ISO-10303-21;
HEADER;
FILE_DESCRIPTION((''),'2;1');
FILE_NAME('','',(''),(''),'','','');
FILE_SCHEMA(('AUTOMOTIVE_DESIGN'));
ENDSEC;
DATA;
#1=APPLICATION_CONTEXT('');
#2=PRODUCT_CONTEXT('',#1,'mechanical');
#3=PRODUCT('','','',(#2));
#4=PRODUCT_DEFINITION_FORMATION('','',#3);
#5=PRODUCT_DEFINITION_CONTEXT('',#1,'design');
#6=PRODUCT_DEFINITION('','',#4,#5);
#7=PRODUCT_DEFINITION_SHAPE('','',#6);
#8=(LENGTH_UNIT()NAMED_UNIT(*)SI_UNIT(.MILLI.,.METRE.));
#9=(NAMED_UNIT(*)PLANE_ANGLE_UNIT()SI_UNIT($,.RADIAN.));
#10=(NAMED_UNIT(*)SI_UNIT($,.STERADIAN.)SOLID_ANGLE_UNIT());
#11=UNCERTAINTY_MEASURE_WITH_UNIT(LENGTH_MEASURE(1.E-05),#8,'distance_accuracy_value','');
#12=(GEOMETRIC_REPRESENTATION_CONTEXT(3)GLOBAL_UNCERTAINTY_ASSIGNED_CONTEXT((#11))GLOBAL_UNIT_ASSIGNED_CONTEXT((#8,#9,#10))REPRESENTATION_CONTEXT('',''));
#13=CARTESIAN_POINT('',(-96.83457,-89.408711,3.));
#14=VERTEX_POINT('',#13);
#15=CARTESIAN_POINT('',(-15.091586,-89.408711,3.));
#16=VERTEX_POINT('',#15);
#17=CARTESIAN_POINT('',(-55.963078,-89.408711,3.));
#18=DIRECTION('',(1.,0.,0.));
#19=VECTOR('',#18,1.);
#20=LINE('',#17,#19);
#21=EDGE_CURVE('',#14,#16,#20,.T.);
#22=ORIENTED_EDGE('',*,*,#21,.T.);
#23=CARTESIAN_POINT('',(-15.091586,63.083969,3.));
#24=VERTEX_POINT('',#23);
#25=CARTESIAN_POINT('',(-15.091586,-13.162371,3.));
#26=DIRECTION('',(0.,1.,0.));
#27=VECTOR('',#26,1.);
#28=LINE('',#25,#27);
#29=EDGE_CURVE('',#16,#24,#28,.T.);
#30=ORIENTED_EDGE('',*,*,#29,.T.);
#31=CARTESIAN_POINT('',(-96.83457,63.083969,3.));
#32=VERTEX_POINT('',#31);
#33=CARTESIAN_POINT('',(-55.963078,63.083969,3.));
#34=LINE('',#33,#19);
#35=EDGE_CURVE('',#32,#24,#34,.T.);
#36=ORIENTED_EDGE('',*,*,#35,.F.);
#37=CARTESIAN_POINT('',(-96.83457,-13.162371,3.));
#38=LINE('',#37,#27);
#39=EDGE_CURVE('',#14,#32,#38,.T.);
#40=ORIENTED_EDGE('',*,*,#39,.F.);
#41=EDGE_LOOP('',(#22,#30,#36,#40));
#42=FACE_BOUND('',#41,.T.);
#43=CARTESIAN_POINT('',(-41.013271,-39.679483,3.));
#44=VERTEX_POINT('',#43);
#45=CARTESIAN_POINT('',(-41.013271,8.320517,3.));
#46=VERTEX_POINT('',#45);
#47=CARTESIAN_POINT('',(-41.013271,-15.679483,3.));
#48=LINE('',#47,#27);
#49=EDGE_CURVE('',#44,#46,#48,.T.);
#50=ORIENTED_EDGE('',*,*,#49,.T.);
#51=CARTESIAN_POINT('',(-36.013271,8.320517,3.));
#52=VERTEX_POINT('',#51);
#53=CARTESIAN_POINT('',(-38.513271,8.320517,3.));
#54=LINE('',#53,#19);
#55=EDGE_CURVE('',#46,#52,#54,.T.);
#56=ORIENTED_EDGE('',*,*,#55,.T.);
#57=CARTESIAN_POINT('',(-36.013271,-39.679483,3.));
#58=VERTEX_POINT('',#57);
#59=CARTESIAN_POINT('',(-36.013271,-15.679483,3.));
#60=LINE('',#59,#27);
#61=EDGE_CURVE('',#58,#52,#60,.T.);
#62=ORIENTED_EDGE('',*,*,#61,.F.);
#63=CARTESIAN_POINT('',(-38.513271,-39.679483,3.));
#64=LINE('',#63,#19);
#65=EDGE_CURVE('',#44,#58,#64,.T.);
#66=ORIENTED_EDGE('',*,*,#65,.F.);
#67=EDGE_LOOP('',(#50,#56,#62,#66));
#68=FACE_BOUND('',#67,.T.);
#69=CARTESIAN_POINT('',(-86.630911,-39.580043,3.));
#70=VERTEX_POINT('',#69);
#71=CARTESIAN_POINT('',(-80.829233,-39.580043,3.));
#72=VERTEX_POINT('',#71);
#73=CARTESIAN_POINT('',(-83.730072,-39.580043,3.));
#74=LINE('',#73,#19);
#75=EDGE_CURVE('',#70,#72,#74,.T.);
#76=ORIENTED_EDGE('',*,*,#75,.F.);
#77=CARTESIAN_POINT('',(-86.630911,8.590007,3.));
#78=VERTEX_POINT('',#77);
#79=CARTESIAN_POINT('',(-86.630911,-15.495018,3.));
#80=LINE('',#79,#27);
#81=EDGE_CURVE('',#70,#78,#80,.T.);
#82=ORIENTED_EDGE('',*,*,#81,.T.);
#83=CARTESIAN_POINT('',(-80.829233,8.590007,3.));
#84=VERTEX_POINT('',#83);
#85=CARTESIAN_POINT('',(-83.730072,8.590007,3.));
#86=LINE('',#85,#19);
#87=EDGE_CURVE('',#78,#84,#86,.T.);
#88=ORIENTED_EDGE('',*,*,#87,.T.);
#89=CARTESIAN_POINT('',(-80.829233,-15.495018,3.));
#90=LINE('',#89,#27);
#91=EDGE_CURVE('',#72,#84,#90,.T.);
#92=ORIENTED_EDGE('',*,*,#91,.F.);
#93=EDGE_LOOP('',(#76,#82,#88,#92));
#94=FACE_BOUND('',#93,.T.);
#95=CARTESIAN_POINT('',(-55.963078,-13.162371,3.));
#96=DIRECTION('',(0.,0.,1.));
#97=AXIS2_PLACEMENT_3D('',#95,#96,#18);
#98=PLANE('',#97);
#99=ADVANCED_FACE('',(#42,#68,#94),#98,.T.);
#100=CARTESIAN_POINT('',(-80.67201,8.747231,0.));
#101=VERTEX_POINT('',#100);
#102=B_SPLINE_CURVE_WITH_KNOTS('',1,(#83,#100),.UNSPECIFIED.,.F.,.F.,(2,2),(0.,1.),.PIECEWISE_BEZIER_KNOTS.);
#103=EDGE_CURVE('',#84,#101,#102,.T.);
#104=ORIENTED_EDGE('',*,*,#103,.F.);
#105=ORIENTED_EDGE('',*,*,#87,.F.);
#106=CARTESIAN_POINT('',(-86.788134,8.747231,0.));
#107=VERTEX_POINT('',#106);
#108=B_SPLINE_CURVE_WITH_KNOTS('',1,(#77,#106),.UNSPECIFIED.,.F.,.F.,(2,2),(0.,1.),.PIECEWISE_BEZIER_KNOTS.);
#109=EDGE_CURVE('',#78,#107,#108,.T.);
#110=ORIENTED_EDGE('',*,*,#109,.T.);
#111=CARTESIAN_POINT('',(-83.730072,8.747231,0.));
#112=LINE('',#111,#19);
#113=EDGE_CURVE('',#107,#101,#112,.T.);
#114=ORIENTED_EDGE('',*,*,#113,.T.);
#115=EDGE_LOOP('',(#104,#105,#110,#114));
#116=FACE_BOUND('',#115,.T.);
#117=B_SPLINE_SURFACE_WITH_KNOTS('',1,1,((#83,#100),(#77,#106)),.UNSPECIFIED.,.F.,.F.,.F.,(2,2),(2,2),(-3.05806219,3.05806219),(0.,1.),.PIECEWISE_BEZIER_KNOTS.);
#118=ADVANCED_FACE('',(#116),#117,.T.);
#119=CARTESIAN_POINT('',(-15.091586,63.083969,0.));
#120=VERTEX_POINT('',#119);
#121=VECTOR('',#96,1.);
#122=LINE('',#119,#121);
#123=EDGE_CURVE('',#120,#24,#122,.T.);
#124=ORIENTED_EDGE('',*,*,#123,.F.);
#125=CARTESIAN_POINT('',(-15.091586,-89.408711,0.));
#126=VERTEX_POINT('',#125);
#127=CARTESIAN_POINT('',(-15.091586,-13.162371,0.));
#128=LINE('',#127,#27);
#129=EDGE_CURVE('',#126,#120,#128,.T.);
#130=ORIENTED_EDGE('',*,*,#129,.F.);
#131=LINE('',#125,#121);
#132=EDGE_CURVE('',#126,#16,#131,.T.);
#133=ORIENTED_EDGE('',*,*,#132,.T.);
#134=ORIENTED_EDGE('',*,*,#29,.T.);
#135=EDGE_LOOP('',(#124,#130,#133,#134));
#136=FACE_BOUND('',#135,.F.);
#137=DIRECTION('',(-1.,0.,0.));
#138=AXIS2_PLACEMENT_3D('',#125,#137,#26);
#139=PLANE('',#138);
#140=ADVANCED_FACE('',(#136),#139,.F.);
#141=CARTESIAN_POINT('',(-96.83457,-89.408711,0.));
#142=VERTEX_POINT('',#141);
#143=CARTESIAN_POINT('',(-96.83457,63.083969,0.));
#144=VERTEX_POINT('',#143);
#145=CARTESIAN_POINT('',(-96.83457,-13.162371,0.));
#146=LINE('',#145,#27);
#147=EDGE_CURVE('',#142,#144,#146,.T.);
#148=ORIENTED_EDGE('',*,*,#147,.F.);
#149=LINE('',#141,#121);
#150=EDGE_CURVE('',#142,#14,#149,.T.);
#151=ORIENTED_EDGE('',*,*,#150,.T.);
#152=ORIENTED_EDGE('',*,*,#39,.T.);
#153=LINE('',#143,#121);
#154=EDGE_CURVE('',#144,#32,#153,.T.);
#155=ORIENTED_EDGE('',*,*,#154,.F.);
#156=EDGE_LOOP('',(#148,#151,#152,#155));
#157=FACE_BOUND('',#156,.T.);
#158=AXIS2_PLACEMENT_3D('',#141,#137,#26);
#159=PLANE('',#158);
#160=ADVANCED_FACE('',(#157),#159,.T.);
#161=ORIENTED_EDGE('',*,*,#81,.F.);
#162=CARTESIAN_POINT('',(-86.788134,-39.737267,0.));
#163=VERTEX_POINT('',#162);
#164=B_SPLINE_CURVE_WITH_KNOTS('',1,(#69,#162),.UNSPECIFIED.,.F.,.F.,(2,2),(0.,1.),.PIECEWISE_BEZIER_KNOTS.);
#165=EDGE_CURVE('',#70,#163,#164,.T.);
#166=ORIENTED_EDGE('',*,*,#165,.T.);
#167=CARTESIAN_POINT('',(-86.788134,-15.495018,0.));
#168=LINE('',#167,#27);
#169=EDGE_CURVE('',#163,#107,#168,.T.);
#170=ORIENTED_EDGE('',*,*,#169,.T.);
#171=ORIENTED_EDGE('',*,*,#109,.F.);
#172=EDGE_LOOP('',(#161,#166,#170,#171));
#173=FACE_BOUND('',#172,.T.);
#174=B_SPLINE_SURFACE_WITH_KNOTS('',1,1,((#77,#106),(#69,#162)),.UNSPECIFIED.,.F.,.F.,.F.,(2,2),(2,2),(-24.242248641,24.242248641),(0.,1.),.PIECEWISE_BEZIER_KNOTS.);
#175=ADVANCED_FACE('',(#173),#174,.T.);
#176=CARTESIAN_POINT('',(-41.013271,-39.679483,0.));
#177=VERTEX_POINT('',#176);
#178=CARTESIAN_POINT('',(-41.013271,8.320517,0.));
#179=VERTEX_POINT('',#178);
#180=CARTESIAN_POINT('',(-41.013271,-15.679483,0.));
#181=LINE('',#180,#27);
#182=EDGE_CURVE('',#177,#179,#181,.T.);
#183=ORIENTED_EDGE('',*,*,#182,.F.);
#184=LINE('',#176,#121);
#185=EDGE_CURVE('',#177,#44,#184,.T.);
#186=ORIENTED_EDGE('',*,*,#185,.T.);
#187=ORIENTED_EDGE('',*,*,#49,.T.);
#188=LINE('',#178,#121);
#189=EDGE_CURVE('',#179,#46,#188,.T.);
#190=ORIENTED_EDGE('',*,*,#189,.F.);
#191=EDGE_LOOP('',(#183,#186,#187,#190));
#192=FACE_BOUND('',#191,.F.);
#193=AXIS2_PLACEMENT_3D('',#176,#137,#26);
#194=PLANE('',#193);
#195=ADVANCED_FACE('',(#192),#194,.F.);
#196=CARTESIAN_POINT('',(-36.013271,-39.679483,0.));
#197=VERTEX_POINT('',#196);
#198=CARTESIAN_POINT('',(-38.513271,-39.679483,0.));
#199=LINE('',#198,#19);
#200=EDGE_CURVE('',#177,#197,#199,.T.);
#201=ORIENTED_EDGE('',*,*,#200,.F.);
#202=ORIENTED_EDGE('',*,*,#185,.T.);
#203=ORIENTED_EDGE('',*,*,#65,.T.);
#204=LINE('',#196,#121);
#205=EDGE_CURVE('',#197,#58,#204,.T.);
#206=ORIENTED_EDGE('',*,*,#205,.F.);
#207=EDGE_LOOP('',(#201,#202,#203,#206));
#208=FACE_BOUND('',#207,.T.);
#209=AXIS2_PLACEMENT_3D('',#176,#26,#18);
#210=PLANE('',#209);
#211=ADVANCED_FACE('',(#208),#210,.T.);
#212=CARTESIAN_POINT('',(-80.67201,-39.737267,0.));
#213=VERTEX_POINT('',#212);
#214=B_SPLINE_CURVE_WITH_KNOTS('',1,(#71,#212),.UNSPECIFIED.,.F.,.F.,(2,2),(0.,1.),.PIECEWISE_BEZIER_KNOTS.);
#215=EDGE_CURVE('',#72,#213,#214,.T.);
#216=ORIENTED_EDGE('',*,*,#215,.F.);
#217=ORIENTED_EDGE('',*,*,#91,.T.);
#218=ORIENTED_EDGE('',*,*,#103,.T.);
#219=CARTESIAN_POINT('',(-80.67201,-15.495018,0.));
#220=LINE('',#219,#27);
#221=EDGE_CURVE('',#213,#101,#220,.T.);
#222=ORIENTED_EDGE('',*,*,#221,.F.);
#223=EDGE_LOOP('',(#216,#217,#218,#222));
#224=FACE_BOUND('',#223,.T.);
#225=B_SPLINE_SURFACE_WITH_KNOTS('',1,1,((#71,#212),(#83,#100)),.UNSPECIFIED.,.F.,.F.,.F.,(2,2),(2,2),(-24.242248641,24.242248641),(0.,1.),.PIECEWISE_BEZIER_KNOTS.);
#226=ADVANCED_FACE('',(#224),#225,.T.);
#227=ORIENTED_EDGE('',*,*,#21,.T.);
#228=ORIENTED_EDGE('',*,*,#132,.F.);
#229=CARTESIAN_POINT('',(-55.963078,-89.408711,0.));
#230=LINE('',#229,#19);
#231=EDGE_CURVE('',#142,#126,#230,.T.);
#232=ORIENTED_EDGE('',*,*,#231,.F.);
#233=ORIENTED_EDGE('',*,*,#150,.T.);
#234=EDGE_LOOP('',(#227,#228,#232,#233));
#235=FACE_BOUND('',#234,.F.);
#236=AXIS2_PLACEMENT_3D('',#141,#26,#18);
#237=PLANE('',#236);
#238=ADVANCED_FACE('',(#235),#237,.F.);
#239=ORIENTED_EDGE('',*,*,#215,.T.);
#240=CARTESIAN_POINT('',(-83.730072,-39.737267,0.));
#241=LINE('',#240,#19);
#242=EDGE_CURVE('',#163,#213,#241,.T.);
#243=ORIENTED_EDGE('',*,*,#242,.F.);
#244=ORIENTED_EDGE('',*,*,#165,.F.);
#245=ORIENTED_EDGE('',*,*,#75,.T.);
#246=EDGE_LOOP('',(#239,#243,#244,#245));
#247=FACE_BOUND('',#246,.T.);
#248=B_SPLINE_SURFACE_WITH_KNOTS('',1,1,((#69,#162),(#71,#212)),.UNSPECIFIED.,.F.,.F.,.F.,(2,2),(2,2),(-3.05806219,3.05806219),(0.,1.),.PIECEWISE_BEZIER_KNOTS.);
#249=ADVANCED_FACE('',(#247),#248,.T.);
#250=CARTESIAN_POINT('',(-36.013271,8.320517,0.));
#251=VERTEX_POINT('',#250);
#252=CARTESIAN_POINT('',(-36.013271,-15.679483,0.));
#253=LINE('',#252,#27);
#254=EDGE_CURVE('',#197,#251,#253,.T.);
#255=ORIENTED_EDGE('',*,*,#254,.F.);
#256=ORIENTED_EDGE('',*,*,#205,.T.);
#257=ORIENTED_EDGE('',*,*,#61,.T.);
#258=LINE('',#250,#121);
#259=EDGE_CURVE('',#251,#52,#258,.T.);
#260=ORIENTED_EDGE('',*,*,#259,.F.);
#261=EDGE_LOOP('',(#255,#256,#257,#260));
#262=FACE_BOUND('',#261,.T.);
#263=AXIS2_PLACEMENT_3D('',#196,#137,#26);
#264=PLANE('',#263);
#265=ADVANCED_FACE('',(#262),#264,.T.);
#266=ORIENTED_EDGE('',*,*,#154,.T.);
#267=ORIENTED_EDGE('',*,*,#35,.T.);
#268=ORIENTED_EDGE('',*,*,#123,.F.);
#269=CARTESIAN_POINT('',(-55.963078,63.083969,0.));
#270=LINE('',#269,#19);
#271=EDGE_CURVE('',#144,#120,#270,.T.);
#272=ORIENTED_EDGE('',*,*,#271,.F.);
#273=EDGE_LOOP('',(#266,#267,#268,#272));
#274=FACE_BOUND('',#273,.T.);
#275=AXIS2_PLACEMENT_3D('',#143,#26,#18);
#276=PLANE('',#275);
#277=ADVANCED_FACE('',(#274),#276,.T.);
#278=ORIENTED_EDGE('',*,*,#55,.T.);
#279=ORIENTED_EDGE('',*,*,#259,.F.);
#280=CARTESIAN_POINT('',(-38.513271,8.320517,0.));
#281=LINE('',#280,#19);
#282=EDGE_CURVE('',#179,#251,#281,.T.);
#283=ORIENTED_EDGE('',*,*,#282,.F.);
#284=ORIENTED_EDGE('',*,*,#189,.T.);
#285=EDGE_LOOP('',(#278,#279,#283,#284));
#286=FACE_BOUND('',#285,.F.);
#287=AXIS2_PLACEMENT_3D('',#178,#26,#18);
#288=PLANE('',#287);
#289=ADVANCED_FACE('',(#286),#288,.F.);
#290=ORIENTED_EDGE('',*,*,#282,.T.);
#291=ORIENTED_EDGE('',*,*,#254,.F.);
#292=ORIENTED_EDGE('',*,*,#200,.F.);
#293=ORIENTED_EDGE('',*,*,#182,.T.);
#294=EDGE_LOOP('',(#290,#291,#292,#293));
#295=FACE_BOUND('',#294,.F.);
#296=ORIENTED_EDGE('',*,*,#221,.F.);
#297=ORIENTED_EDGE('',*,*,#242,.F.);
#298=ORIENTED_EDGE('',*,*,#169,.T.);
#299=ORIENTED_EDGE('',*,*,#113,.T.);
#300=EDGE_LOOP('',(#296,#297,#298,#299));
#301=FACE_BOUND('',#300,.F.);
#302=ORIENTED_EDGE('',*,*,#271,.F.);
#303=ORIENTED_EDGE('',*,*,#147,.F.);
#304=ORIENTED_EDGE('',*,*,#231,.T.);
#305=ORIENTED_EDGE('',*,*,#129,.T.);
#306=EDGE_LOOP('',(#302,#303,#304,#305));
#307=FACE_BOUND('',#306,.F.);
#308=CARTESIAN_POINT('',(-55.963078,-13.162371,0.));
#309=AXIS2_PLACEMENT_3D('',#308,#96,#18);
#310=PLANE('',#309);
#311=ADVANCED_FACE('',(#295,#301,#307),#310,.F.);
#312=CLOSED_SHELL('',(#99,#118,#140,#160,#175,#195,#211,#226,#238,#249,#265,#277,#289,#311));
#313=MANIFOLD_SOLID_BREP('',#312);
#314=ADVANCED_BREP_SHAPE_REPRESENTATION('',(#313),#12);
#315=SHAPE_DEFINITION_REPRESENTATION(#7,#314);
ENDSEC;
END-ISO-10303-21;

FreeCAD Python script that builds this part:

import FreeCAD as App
import Part
import Sketcher

V = App.Vector
Q = App.Units.Quantity


def add_polygon(sketch, points):
    """Adds a closed chain of lines whose ends are joined by coincident constraints."""
    first, n = sketch.GeometryCount, len(points)
    for a, b in zip(points, points[1:] + points[:1]):
        sketch.addGeometry(Part.LineSegment(App.Vector(*a, 0), App.Vector(*b, 0)), False)
    for i in range(n):
        sketch.addConstraint(Sketcher.Constraint("Coincident", first + i, 2, first + (i + 1) % n, 1))

doc = App.newDocument("Part")
body = doc.addObject("PartDesign::Body", "Body")

# Sketch on XY plane
sketch1 = body.newObject("Sketcher::SketchObject", "Sketch")
sketch1.AttachmentSupport = (doc.getObject("XY_Plane"), [""])
sketch1.MapMode = "FlatFace"
add_polygon(sketch1, [(-96.83457, 63.083969), (-96.83457, -89.408711), (-15.091586, -89.408711), (-15.091586, 63.083969)])  # lines 0-3
add_polygon(sketch1, [(-36.013271, -39.679483), (-41.013271, -39.679483), (-41.013271, 8.320517), (-36.013271, 8.320517)])  # lines 4-7
sketch1.addConstraint([
    Sketcher.Constraint("Vertical", 0),
    Sketcher.Constraint("Horizontal", 1),
    Sketcher.Constraint("Vertical", 2),
    Sketcher.Constraint("Horizontal", 3),
    Sketcher.Constraint("Horizontal", 4),
    Sketcher.Constraint("Vertical", 5),
    Sketcher.Constraint("Horizontal", 6),
    Sketcher.Constraint("Vertical", 7),
    Sketcher.Constraint("DistanceX", 4, 2, 4, 1, Q("5 mm")),
    Sketcher.Constraint("DistanceY", 5, 1, 5, 2, Q("48 mm")),
    Sketcher.Constraint("DistanceY", 0, 2, 0, 1, Q("152.49268 mm")),
    Sketcher.Constraint("DistanceX", 0, 2, 4, 2, Q("55.8213 mm")),
    Sketcher.Constraint("DistanceX", 1, 1, 1, 2, Q("81.742984 mm")),
    Sketcher.Constraint("DistanceX", 0, 2, -1, 1, Q("96.83457 mm")),
    Sketcher.Constraint("DistanceY", 0, 2, -1, 1, Q("89.408711 mm")),
    Sketcher.Constraint("DistanceY", 1, 2, 4, 2, Q("49.729228 mm")),
])
pad1 = body.newObject("PartDesign::Pad", "Pad")
pad1.Profile = sketch1
pad1.Length = 3

# Sketch on XY plane
sketch2 = body.newObject("Sketcher::SketchObject", "Sketch001")
sketch2.AttachmentSupport = (doc.getObject("XY_Plane"), [""])
sketch2.MapMode = "FlatFace"
sketch2.AttachmentOffset = App.Placement(V(0, 0, 3), App.Rotation())
add_polygon(sketch2, [(-86.630911, 8.590007), (-86.630911, -39.580043), (-80.829233, -39.580043), (-80.829233, 8.590007)])  # lines 0-3
sketch2.addConstraint([
    Sketcher.Constraint("Vertical", 0),
    Sketcher.Constraint("Horizontal", 1),
    Sketcher.Constraint("Vertical", 2),
    Sketcher.Constraint("Horizontal", 3),
    Sketcher.Constraint("DistanceY", 0, 2, 0, 1, Q("48.170051 mm")),
    Sketcher.Constraint("DistanceX", 1, 1, 1, 2, Q("5.801678 mm")),
    Sketcher.Constraint("DistanceX", 0, 2, -1, 1, Q("86.630911 mm")),
    Sketcher.Constraint("DistanceY", 0, 2, -1, 1, Q("39.580043 mm")),
])
pocket1 = body.newObject("PartDesign::Pocket", "Pocket")
pocket1.Profile = sketch2
pocket1.Length = 3
pocket1.TaperAngle = 3

doc.recompute()
